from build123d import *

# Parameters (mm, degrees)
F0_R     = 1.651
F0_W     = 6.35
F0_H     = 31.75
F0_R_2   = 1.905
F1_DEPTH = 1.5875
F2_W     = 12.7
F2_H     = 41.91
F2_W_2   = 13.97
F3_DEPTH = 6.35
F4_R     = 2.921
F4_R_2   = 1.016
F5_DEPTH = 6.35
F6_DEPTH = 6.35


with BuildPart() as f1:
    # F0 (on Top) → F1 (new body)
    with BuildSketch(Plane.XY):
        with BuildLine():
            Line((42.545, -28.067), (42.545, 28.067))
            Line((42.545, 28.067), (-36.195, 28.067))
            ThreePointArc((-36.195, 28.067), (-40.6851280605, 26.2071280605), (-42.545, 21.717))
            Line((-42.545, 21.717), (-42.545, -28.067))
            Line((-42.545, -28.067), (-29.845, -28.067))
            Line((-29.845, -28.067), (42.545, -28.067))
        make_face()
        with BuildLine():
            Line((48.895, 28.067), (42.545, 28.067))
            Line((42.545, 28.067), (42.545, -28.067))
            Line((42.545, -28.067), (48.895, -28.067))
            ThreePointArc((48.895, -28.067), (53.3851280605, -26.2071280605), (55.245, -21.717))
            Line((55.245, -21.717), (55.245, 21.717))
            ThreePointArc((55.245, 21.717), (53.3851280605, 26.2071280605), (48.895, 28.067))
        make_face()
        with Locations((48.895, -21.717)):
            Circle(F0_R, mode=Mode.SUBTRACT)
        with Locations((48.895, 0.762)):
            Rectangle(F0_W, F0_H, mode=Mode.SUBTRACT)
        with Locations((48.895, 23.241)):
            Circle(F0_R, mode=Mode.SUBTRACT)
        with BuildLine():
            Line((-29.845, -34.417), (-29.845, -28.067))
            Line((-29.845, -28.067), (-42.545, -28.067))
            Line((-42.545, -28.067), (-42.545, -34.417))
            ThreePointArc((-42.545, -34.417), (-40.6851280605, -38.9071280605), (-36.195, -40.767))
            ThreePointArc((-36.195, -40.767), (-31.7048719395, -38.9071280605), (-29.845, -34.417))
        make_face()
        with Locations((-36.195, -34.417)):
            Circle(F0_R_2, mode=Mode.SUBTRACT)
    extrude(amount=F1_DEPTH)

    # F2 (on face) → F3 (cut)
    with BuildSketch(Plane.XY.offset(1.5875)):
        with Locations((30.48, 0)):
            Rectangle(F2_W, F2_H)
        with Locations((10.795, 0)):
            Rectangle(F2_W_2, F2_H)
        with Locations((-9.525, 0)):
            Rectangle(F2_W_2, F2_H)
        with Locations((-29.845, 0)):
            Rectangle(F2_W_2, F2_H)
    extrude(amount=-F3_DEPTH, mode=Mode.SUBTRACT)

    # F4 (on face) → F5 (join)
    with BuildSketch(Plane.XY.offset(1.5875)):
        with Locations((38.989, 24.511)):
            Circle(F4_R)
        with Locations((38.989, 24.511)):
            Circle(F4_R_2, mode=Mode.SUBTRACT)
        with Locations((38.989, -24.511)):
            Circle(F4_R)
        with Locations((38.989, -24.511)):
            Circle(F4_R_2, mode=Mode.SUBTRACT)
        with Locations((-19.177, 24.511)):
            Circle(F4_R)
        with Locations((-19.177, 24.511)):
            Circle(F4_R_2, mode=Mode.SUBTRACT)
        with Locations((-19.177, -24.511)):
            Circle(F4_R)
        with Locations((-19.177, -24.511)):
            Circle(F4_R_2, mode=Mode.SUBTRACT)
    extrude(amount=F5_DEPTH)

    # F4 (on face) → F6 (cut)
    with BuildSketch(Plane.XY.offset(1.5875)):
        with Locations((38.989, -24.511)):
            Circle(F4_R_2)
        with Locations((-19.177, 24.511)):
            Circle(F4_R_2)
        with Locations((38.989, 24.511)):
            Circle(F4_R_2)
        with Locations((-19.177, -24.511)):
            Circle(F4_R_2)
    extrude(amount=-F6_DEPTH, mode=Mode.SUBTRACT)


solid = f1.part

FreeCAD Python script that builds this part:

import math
import FreeCAD as App
import Part
import Sketcher

V = App.Vector
Q = App.Units.Quantity

doc = App.newDocument("Part")
params = doc.addObject("Spreadsheet::Sheet", "Params")
for row, (alias, value) in enumerate([
    ("sketch1_diameter", "0.15 in"),
    ("sketch1_diameter2", "0.13 in"),
    ("sketch1_radius", "0.25 in"),
    ("sketch1_width", "3.1 in"),
    ("sketch1_width2", "0.25 in"),
    ("pad1_length", "0.0625 in"),
    ("sketch2_width", "0.5 in"),
    ("sketch2_width2", "0.55 in"),
    ("sketch2_height", "1.65 in"),
    ("pocket1_length", "0.25 in"),
    ("sketch3_diameter", "0.23 in"),
    ("sketch3_diameter2", "0.08 in"),
    ("pad2_length", "0.25 in"),
    ("sketch4_diameter", "0.08 in"),
    ("pocket2_length", "0.25 in"),
], start=1):
    params.set(f"A{row}", alias)
    params.set(f"B{row}", "=" + value)
    params.setAlias(f"B{row}", alias)

body = doc.addObject("PartDesign::Body", "Body")

sketch1 = body.newObject("Sketcher::SketchObject", "Sketch")
sketch1.AttachmentSupport = (doc.getObject("XY_Plane"), [""])
sketch1.MapMode = "FlatFace"
sketch1.addGeometry([
    Part.ArcOfCircle(Part.Circle(V(-36.195, 21.717, 0), V(0, 0, 1), 6.35), math.radians(90), math.radians(180)),
    Part.LineSegment(V(-42.545, 21.717, 0), V(-42.545, -34.417, 0)),
    Part.ArcOfCircle(Part.Circle(V(-36.195, -34.417, 0), V(0, 0, 1), 6.35), math.radians(180), math.radians(270)),
    Part.ArcOfCircle(Part.Circle(V(-36.195, -34.417, 0), V(0, 0, 1), 6.35), math.radians(-90), math.radians(0)),
    Part.LineSegment(V(-29.845, -34.417, 0), V(-29.845, -28.067, 0)),
    Part.LineSegment(V(-29.845, -28.067, 0), V(48.895, -28.067, 0)),
    Part.ArcOfCircle(Part.Circle(V(48.895, -21.717, 0), V(0, 0, 1), 6.35), math.radians(-90), math.radians(0)),
    Part.LineSegment(V(55.245, -21.717, 0), V(55.245, 21.717, 0)),
    Part.ArcOfCircle(Part.Circle(V(48.895, 21.717, 0), V(0, 0, 1), 6.35), math.radians(0), math.radians(90)),
    Part.LineSegment(V(48.895, 28.067, 0), V(-36.195, 28.067, 0)),
    Part.Circle(V(-36.195, -34.417, 0), V(0, 0, 1), 1.905),
    Part.Circle(V(48.895, -21.717, 0), V(0, 0, 1), 1.651),
    Part.LineSegment(V(52.07, -15.113, 0), V(45.72, -15.113, 0)),
    Part.LineSegment(V(45.72, -15.113, 0), V(45.72, 16.637, 0)),
    Part.LineSegment(V(45.72, 16.637, 0), V(52.07, 16.637, 0)),
    Part.LineSegment(V(52.07, 16.637, 0), V(52.07, -15.113, 0)),
    Part.Circle(V(48.895, 23.241, 0), V(0, 0, 1), 1.651),
], False)
sketch1.addConstraint([
    Sketcher.Constraint("Tangent", 0, 2, 1, 1),
    Sketcher.Constraint("Tangent", 1, 2, 2, 1),
    Sketcher.Constraint("Tangent", 2, 2, 3, 1),
    Sketcher.Constraint("Tangent", 3, 2, 4, 1),
    Sketcher.Constraint("Coincident", 4, 2, 5, 1),
    Sketcher.Constraint("Tangent", 5, 2, 6, 1),
    Sketcher.Constraint("Tangent", 6, 2, 7, 1),
    Sketcher.Constraint("Tangent", 7, 2, 8, 1),
    Sketcher.Constraint("Tangent", 8, 2, 9, 1),
    Sketcher.Constraint("Tangent", 9, 2, 0, 1),
    Sketcher.Constraint("Coincident", 12, 2, 13, 1),
    Sketcher.Constraint("Coincident", 13, 2, 14, 1),
    Sketcher.Constraint("Coincident", 14, 2, 15, 1),
    Sketcher.Constraint("Coincident", 15, 2, 12, 1),
    Sketcher.Constraint("Vertical", 1),
    Sketcher.Constraint("Vertical", 4),
    Sketcher.Constraint("Horizontal", 5),
    Sketcher.Constraint("Vertical", 7),
    Sketcher.Constraint("Horizontal", 9),
    Sketcher.Constraint("Horizontal", 12),
    Sketcher.Constraint("Vertical", 13),
    Sketcher.Constraint("Horizontal", 14),
    Sketcher.Constraint("Vertical", 15),
    Sketcher.Constraint("Coincident", 10, 3, 2, 3),
    Sketcher.Constraint("Coincident", 11, 3, 6, 3),
    Sketcher.Constraint("Equal", 0, 2),
    Sketcher.Constraint("Equal", 2, 3),
    Sketcher.Constraint("Equal", 3, 6),
    Sketcher.Constraint("Equal", 6, 8),
    Sketcher.Constraint("Equal", 11, 16),
    Sketcher.Constraint("Vertical", 11, 3, 16, 3),
    Sketcher.Constraint("Vertical", 10, 3, 2, 2),
    Sketcher.Constraint("Equal", 14, 4),
    Sketcher.Constraint("Diameter", 10, Q("0.15 in")),
    Sketcher.Constraint("Diameter", 11, Q("0.13 in")),
    Sketcher.Constraint("Radius", 0, Q("0.25 in")),
    Sketcher.Constraint("DistanceX", 5, 1, 5, 2, Q("3.1 in")),
    Sketcher.Constraint("DistanceX", 12, 2, 12, 1, Q("0.25 in")),
    Sketcher.Constraint("DistanceY", 1, 2, 1, 1, Q("2.21 in")),
    Sketcher.Constraint("DistanceY", 13, 1, 13, 2, Q("1.25 in")),
    Sketcher.Constraint("DistanceX", -1, 1, 12, 2, Q("1.8 in")),
    Sketcher.Constraint("DistanceY", 13, 2, 8, 3, Q("0.2 in")),
    Sketcher.Constraint("DistanceY", 8, 3, 16, 3, Q("0.06 in")),
    Sketcher.Constraint("DistanceX", 0, 3, -1, 1, Q("1.425 in")),
    Sketcher.Constraint("DistanceY", -1, 1, 0, 3, Q("0.855 in")),
])
sketch1.setExpression("Constraints[33]", "Params.sketch1_diameter")
sketch1.setExpression("Constraints[34]", "Params.sketch1_diameter2")
sketch1.setExpression("Constraints[35]", "Params.sketch1_radius")
sketch1.setExpression("Constraints[36]", "Params.sketch1_width")
sketch1.setExpression("Constraints[37]", "Params.sketch1_width2")
pad1 = body.newObject("PartDesign::Pad", "Pad")
pad1.Profile = sketch1
pad1.setExpression("Length", "Params.pad1_length")

sketch2 = body.newObject("Sketcher::SketchObject", "Sketch001")
sketch2.AttachmentSupport = (doc.getObject("XY_Plane"), [""])
sketch2.MapMode = "FlatFace"
sketch2.AttachmentOffset = App.Placement(V(0, 0, 0.0625 * 25.4), App.Rotation())
sketch2.addGeometry([
    Part.LineSegment(V(24.13, 20.955, 0), V(24.13, -20.955, 0)),
    Part.LineSegment(V(24.13, -20.955, 0), V(36.83, -20.955, 0)),
    Part.LineSegment(V(36.83, -20.955, 0), V(36.83, 20.955, 0)),
    Part.LineSegment(V(36.83, 20.955, 0), V(24.13, 20.955, 0)),
    Part.LineSegment(V(3.81, 20.955, 0), V(3.81, -20.955, 0)),
    Part.LineSegment(V(3.81, -20.955, 0), V(17.78, -20.955, 0)),
    Part.LineSegment(V(17.78, -20.955, 0), V(17.78, 20.955, 0)),
    Part.LineSegment(V(17.78, 20.955, 0), V(3.81, 20.955, 0)),
    Part.LineSegment(V(-16.51, 20.955, 0), V(-16.51, -20.955, 0)),
    Part.LineSegment(V(-16.51, -20.955, 0), V(-2.54, -20.955, 0)),
    Part.LineSegment(V(-2.54, -20.955, 0), V(-2.54, 20.955, 0)),
    Part.LineSegment(V(-2.54, 20.955, 0), V(-16.51, 20.955, 0)),
    Part.LineSegment(V(-36.83, 20.955, 0), V(-36.83, -20.955, 0)),
    Part.LineSegment(V(-36.83, -20.955, 0), V(-22.86, -20.955, 0)),
    Part.LineSegment(V(-22.86, -20.955, 0), V(-22.86, 20.955, 0)),
    Part.LineSegment(V(-22.86, 20.955, 0), V(-36.83, 20.955, 0)),
], False)
sketch2.addConstraint([
    Sketcher.Constraint("Coincident", 0, 2, 1, 1),
    Sketcher.Constraint("Coincident", 1, 2, 2, 1),
    Sketcher.Constraint("Coincident", 2, 2, 3, 1),
    Sketcher.Constraint("Coincident", 3, 2, 0, 1),
    Sketcher.Constraint("Coincident", 4, 2, 5, 1),
    Sketcher.Constraint("Coincident", 5, 2, 6, 1),
    Sketcher.Constraint("Coincident", 6, 2, 7, 1),
    Sketcher.Constraint("Coincident", 7, 2, 4, 1),
    Sketcher.Constraint("Coincident", 8, 2, 9, 1),
    Sketcher.Constraint("Coincident", 9, 2, 10, 1),
    Sketcher.Constraint("Coincident", 10, 2, 11, 1),
    Sketcher.Constraint("Coincident", 11, 2, 8, 1),
    Sketcher.Constraint("Coincident", 12, 2, 13, 1),
    Sketcher.Constraint("Coincident", 13, 2, 14, 1),
    Sketcher.Constraint("Coincident", 14, 2, 15, 1),
    Sketcher.Constraint("Coincident", 15, 2, 12, 1),
    Sketcher.Constraint("Vertical", 0),
    Sketcher.Constraint("Horizontal", 1),
    Sketcher.Constraint("Vertical", 2),
    Sketcher.Constraint("Horizontal", 3),
    Sketcher.Constraint("Vertical", 4),
    Sketcher.Constraint("Horizontal", 5),
    Sketcher.Constraint("Vertical", 6),
    Sketcher.Constraint("Horizontal", 7),
    Sketcher.Constraint("Vertical", 8),
    Sketcher.Constraint("Horizontal", 9),
    Sketcher.Constraint("Vertical", 10),
    Sketcher.Constraint("Horizontal", 11),
    Sketcher.Constraint("Vertical", 12),
    Sketcher.Constraint("Horizontal", 13),
    Sketcher.Constraint("Vertical", 14),
    Sketcher.Constraint("Horizontal", 15),
    Sketcher.Constraint("Symmetric", 2, 2, 12, 2, -1, 1),
    Sketcher.Constraint("Horizontal", 1, 2, 4, 2),
    Sketcher.Constraint("Horizontal", 3, 2, 6, 2),
    Sketcher.Constraint("Horizontal", 5, 2, 8, 2),
    Sketcher.Constraint("Horizontal", 7, 2, 10, 2),
    Sketcher.Constraint("Horizontal", 9, 2, 12, 2),
    Sketcher.Constraint("Horizontal", 11, 2, 14, 2),
    Sketcher.Constraint("Equal", 7, 9),
    Sketcher.Constraint("Equal", 11, 13),
    Sketcher.Constraint("DistanceX", 1, 1, 1, 2, Q("0.5 in")),
    Sketcher.Constraint("DistanceX", 5, 1, 5, 2, Q("0.55 in")),
    Sketcher.Constraint("DistanceY", 0, 2, 0, 1, Q("1.65 in")),
    Sketcher.Constraint("DistanceX", -1, 1, 5, 2, Q("0.7 in")),
    Sketcher.Constraint("DistanceX", 9, 2, -1, 1, Q("0.1 in")),
    Sketcher.Constraint("DistanceX", 13, 2, -1, 1, Q("0.9 in")),
])
sketch2.setExpression("Constraints[41]", "Params.sketch2_width")
sketch2.setExpression("Constraints[42]", "Params.sketch2_width2")
sketch2.setExpression("Constraints[43]", "Params.sketch2_height")
pocket1 = body.newObject("PartDesign::Pocket", "Pocket")
pocket1.Profile = sketch2
pocket1.setExpression("Length", "Params.pocket1_length")

sketch3 = body.newObject("Sketcher::SketchObject", "Sketch002")
sketch3.AttachmentSupport = (doc.getObject("XY_Plane"), [""])
sketch3.MapMode = "FlatFace"
sketch3.AttachmentOffset = App.Placement(V(0, 0, 0.0625 * 25.4), App.Rotation())
sketch3.addGeometry([
    Part.Circle(V(38.989, 24.511, 0), V(0, 0, 1), 2.921),
    Part.Circle(V(38.989, 24.511, 0), V(0, 0, 1), 1.016),
    Part.Circle(V(38.989, -24.511, 0), V(0, 0, 1), 2.921),
    Part.Circle(V(38.989, -24.511, 0), V(0, 0, 1), 1.016),
    Part.Circle(V(-19.177, 24.511, 0), V(0, 0, 1), 2.921),
    Part.Circle(V(-19.177, 24.511, 0), V(0, 0, 1), 1.016),
    Part.Circle(V(-19.177, -24.511, 0), V(0, 0, 1), 2.921),
    Part.Circle(V(-19.177, -24.511, 0), V(0, 0, 1), 1.016),
], False)
sketch3.addConstraint([
    Sketcher.Constraint("Coincident", 1, 3, 0, 3),
    Sketcher.Constraint("Coincident", 3, 3, 2, 3),
    Sketcher.Constraint("Coincident", 5, 3, 4, 3),
    Sketcher.Constraint("Coincident", 7, 3, 6, 3),
    Sketcher.Constraint("Equal", 0, 2),
    Sketcher.Constraint("Equal", 1, 3),
    Sketcher.Constraint("Equal", 2, 4),
    Sketcher.Constraint("Equal", 3, 5),
    Sketcher.Constraint("Equal", 4, 6),
    Sketcher.Constraint("Equal", 5, 7),
    Sketcher.Constraint("Symmetric", 0, 3, 2, 3, -1),
    Sketcher.Constraint("Symmetric", 4, 3, 6, 3, -1),
    Sketcher.Constraint("Horizontal", 1, 3, 4, 3),
    Sketcher.Constraint("Diameter", 0, Q("0.23 in")),
    Sketcher.Constraint("Diameter", 1, Q("0.08 in")),
    Sketcher.Constraint("DistanceY", 2, 3, 0, 3, Q("1.93 in")),
    Sketcher.Constraint("DistanceX", 4, 3, 0, 3, Q("2.29 in")),
    Sketcher.Constraint("DistanceX", -1, 1, 0, 3, Q("1.535 in")),
])
sketch3.setExpression("Constraints[13]", "Params.sketch3_diameter")
sketch3.setExpression("Constraints[14]", "Params.sketch3_diameter2")
pad2 = body.newObject("PartDesign::Pad", "Pad001")
pad2.Profile = sketch3
pad2.setExpression("Length", "Params.pad2_length")

sketch4 = body.newObject("Sketcher::SketchObject", "Sketch003")
sketch4.AttachmentSupport = (doc.getObject("XY_Plane"), [""])
sketch4.MapMode = "FlatFace"
sketch4.AttachmentOffset = App.Placement(V(0, 0, 0.0625 * 25.4), App.Rotation())
sketch4.addGeometry([
    Part.Circle(V(38.989, -24.511, 0), V(0, 0, 1), 1.016),
    Part.Circle(V(-19.177, 24.511, 0), V(0, 0, 1), 1.016),
    Part.Circle(V(38.989, 24.511, 0), V(0, 0, 1), 1.016),
    Part.Circle(V(-19.177, -24.511, 0), V(0, 0, 1), 1.016),
], False)
sketch4.addConstraint([
    Sketcher.Constraint("Equal", 0, 1),
    Sketcher.Constraint("Equal", 1, 2),
    Sketcher.Constraint("Equal", 2, 3),
    Sketcher.Constraint("Symmetric", 0, 3, 2, 3, -1),
    Sketcher.Constraint("Symmetric", 1, 3, 3, 3, -1),
    Sketcher.Constraint("Horizontal", 1, 3, 2, 3),
    Sketcher.Constraint("Diameter", 0, Q("0.08 in")),
    Sketcher.Constraint("DistanceX", 1, 3, 0, 3, Q("2.29 in")),
    Sketcher.Constraint("DistanceY", 0, 3, 1, 3, Q("1.93 in")),
    Sketcher.Constraint("DistanceX", -1, 1, 0, 3, Q("1.535 in")),
])
sketch4.setExpression("Constraints[6]", "Params.sketch4_diameter")
pocket2 = body.newObject("PartDesign::Pocket", "Pocket001")
pocket2.Profile = sketch4
pocket2.setExpression("Length", "Params.pocket2_length")

doc.recompute()
